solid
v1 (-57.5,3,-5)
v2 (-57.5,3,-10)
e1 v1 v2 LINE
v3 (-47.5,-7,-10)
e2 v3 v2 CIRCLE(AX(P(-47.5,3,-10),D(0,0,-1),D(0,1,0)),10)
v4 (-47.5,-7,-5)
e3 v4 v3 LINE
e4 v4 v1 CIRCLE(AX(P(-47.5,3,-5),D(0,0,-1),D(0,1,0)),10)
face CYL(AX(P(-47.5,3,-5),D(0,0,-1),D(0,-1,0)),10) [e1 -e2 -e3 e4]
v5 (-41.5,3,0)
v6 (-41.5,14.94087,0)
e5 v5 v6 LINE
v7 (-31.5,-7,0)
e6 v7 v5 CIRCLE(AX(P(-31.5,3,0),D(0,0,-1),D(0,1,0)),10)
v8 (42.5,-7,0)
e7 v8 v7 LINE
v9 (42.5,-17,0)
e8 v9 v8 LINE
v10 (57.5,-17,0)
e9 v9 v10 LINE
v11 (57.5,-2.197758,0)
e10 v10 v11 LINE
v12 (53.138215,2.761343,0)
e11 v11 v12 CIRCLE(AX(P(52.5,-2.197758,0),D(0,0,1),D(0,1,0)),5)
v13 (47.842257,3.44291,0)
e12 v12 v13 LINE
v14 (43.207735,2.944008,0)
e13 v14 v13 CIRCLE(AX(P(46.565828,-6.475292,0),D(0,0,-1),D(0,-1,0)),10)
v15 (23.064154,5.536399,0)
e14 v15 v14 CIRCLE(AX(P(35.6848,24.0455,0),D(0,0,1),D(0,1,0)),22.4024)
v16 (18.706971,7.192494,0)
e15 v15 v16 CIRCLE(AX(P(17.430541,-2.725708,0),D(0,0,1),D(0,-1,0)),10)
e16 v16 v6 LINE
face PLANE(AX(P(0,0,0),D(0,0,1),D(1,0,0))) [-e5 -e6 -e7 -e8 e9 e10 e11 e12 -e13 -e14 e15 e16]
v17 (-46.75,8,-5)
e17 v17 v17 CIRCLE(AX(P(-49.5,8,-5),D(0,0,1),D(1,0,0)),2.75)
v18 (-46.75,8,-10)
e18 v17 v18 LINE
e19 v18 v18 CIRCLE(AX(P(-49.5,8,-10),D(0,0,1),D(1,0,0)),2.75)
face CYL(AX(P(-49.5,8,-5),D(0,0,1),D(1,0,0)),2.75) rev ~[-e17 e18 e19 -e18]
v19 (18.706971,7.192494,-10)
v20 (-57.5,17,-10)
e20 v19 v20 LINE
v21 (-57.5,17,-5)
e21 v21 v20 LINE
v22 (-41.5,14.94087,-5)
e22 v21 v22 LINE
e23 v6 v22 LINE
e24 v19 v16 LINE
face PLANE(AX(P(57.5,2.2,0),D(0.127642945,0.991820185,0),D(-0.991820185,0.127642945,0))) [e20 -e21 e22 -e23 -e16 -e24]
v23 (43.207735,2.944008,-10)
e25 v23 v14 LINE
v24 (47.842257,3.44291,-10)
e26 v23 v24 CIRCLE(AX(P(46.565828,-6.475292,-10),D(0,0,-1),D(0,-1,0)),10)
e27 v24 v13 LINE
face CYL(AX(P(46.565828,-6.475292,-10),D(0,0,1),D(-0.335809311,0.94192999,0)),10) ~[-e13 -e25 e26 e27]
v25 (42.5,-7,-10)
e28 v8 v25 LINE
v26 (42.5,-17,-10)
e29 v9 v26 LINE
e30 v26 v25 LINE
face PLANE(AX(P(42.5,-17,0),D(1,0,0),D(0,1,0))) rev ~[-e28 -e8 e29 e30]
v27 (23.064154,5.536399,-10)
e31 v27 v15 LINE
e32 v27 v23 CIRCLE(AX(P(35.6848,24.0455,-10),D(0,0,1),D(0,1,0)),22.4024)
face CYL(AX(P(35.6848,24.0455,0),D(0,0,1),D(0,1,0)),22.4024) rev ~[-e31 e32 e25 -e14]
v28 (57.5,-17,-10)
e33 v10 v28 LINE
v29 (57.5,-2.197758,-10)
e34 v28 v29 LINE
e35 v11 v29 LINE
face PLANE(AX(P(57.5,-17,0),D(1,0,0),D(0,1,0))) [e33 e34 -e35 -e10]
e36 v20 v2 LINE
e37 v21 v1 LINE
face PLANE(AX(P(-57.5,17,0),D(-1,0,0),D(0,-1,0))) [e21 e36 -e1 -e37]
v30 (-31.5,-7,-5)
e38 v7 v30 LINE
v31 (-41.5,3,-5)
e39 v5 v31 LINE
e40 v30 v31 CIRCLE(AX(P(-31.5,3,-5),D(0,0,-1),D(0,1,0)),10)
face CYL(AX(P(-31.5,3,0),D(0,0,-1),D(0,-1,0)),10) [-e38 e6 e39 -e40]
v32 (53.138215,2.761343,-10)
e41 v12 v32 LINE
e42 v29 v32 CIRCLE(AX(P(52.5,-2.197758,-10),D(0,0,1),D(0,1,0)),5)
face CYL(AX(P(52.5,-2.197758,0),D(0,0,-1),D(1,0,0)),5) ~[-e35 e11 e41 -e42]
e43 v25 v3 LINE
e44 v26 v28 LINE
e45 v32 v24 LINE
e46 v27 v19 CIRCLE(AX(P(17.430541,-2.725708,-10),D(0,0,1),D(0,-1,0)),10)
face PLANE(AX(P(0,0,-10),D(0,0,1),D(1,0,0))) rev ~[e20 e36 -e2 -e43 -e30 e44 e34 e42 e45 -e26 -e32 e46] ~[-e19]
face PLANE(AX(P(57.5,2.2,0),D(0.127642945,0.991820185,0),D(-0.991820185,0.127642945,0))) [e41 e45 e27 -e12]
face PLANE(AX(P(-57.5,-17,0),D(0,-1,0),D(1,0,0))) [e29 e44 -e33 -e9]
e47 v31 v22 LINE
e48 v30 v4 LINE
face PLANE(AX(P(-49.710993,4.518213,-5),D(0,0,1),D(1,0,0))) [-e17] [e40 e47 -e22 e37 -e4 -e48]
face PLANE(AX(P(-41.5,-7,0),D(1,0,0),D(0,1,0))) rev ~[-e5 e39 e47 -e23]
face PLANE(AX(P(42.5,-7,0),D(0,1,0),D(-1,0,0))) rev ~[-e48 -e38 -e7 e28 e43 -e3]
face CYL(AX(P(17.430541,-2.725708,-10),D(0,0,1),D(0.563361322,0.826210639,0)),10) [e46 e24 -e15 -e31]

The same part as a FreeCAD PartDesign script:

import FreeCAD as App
import Part
import Sketcher
from FreeCAD import Vector
Q = App.Units.Quantity


def edges_at(feature, points):
    """Names of the edges that pass closest to the given points."""
    edges = feature.Shape.Edges
    near = lambda p: min(range(len(edges)), key=lambda i: edges[i].distToShape(Part.Vertex(*p))[0])
    return sorted({f"Edge{near(p) + 1}" for p in points})


def add_polygon(sketch, points):
    """Adds a closed chain of lines whose ends are joined by coincident constraints."""
    first, n = sketch.GeometryCount, len(points)
    for a, b in zip(points, points[1:] + points[:1]):
        sketch.addGeometry(Part.LineSegment(App.Vector(*a, 0), App.Vector(*b, 0)), False)
    for i in range(n):
        sketch.addConstraint(Sketcher.Constraint("Coincident", first + i, 2, first + (i + 1) % n, 1))

doc = App.newDocument("Part")
params = doc.addObject("Spreadsheet::Sheet", "Params")
for row, (alias, value) in enumerate([
    ("sketch1_width", "115 mm"),
    ("sketch1_height", "34 mm"),
    ("pad1_length", "10 mm"),
    ("sketch2_width", "100 mm"),
    ("sketch2_height", "10 mm"),
    ("pocket1_length", "10 mm"),
    ("sketch3_width", "115 mm"),
    ("sketch3_height", "14.8 mm"),
    ("pocket2_length", "10 mm"),
    ("fillet_radius", "5 mm"),
    ("pocket3_length", "10 mm"),
    ("fillet2_radius", "10 mm"),
    ("fillet3_radius", "10 mm"),
    ("sketch5_width", "16 mm"),
    ("sketch5_height", "24 mm"),
    ("pocket4_length", "5 mm"),
    ("fillet4_radius", "10 mm"),
    ("sketch6_diameter", "5.5 mm"),
    ("pocket5_length", "5.5 mm"),
    ("fillet5_radius", "10 mm"),
], start=1):
    params.set(f"A{row}", alias)
    params.set(f"B{row}", "=" + value)
    params.setAlias(f"B{row}", alias)

body = doc.addObject("PartDesign::Body", "Body")

sketch1 = body.newObject("Sketcher::SketchObject", "Sketch")
sketch1.AttachmentSupport = (doc.getObject("XY_Plane"), [""])
sketch1.MapMode = "FlatFace"
add_polygon(sketch1, [(-58, 17), (-58, -17), (58, -17), (58, 17)])
sketch1.addConstraint([
    Sketcher.Constraint("Vertical", 0),
    Sketcher.Constraint("Horizontal", 1),
    Sketcher.Constraint("Vertical", 2),
    Sketcher.Constraint("Horizontal", 3),
    Sketcher.Constraint("Symmetric", 0, 2, 2, 2, -1, 1),
    Sketcher.Constraint("DistanceX", 1, 1, 1, 2, Q("115 mm")),
    Sketcher.Constraint("DistanceY", 0, 2, 0, 1, Q("34 mm")),
])
sketch1.setExpression("Constraints[9]", "Params.sketch1_width")
sketch1.setExpression("Constraints[10]", "Params.sketch1_height")
pad1 = body.newObject("PartDesign::Pad", "Pad")
pad1.Profile = sketch1
pad1.setExpression("Length", "Params.pad1_length")
pad1.Reversed = True

sketch2 = body.newObject("Sketcher::SketchObject", "Sketch001")
sketch2.AttachmentSupport = (doc.getObject("XY_Plane"), [""])
sketch2.MapMode = "FlatFace"
add_polygon(sketch2, [(-58, -7), (-58, -17), (42, -17), (42, -7)])
sketch2.addConstraint([
    Sketcher.Constraint("Vertical", 0),
    Sketcher.Constraint("Horizontal", 1),
    Sketcher.Constraint("Vertical", 2),
    Sketcher.Constraint("Horizontal", 3),
    Sketcher.Constraint("DistanceX", 1, 1, 1, 2, Q("100 mm")),
    Sketcher.Constraint("DistanceY", 0, 2, 0, 1, Q("10 mm")),
    Sketcher.Constraint("DistanceY", 0, 2, -1, 1, Q("17 mm")),
    Sketcher.Constraint("DistanceX", 0, 2, -1, 1, Q("57.5 mm")),
])
sketch2.setExpression("Constraints[8]", "Params.sketch2_width")
sketch2.setExpression("Constraints[9]", "Params.sketch2_height")
pocket1 = body.newObject("PartDesign::Pocket", "Pocket")
pocket1.Profile = sketch2
pocket1.setExpression("Length", "Params.pocket1_length")

sketch3 = body.newObject("Sketcher::SketchObject", "Sketch002")
sketch3.AttachmentSupport = (doc.getObject("XY_Plane"), [""])
sketch3.MapMode = "FlatFace"
add_polygon(sketch3, [(-58, 17), (58, 2), (58, 17)])
sketch3.addConstraint([
    Sketcher.Constraint("Vertical", 1),
    Sketcher.Constraint("Horizontal", 2),
    Sketcher.Constraint("DistanceX", 2, 2, 2, 1, Q("115 mm")),
    Sketcher.Constraint("DistanceY", 1, 1, 1, 2, Q("14.8 mm")),
    Sketcher.Constraint("DistanceY", -1, 1, 1, 2, Q("17 mm")),
    Sketcher.Constraint("DistanceX", -1, 1, 0, 2, Q("57.5 mm")),
])
sketch3.setExpression("Constraints[5]", "Params.sketch3_width")
sketch3.setExpression("Constraints[6]", "Params.sketch3_height")
pocket2 = body.newObject("PartDesign::Pocket", "Pocket001")
pocket2.Profile = sketch3
pocket2.setExpression("Length", "Params.pocket2_length")
doc.recompute()

fillet = body.newObject("PartDesign::Fillet", "Fillet")
fillet.Base = (pocket2, edges_at(pocket2, [(57.5, 2.2, -5)]))
fillet.setExpression("Radius", "Params.fillet_radius")

sketch4 = body.newObject("Sketcher::SketchObject", "Sketch003")
sketch4.AttachmentSupport = (doc.getObject("XY_Plane"), [""])
sketch4.MapMode = "FlatFace"
sketch4.addGeometry(Part.Circle(Vector(36, 24, 0), Vector(0, 0, 1), 22), False)
sketch4.addConstraint([
    Sketcher.Constraint("Diameter", 0, Q("44.8048 mm")),
    Sketcher.Constraint("DistanceX", -1, 1, 0, 3, Q("35.6848 mm")),
    Sketcher.Constraint("DistanceY", -1, 1, 0, 3, Q("24.0455 mm")),
])
pocket3 = body.newObject("PartDesign::Pocket", "Pocket002")
pocket3.Profile = sketch4
pocket3.setExpression("Length", "Params.pocket3_length")
doc.recompute()

fillet2 = body.newObject("PartDesign::Fillet", "Fillet001")
fillet2.Base = (pocket3, edges_at(pocket3, [(45.231, 3.779, -5)]))
fillet2.setExpression("Radius", "Params.fillet2_radius")
doc.recompute()

fillet3 = body.newObject("PartDesign::Fillet", "Fillet002")
fillet3.Base = (fillet2, edges_at(fillet2, [(21.318, 6.856, -5)]))
fillet3.setExpression("Radius", "Params.fillet3_radius")

sketch5 = body.newObject("Sketcher::SketchObject", "Sketch004")
sketch5.AttachmentSupport = (doc.getObject("XY_Plane"), [""])
sketch5.MapMode = "FlatFace"
add_polygon(sketch5, [(-58, 17), (-58, -7), (-42, -7), (-42, 15)])
sketch5.addConstraint([
    Sketcher.Constraint("Vertical", 0),
    Sketcher.Constraint("Horizontal", 1),
    Sketcher.Constraint("Vertical", 2),
    Sketcher.Constraint("DistanceX", 1, 1, 1, 2, Q("16 mm")),
    Sketcher.Constraint("DistanceY", 0, 2, 0, 1, Q("24 mm")),
    Sketcher.Constraint("DistanceY", 0, 2, -1, 1, Q("7 mm")),
    Sketcher.Constraint("DistanceX", 0, 2, -1, 1, Q("57.5 mm")),
    Sketcher.Constraint("DistanceY", 2, 1, 2, 2, Q("21.941 mm")),
])
sketch5.setExpression("Constraints[7]", "Params.sketch5_width")
sketch5.setExpression("Constraints[8]", "Params.sketch5_height")
pocket4 = body.newObject("PartDesign::Pocket", "Pocket003")
pocket4.Profile = sketch5
pocket4.setExpression("Length", "Params.pocket4_length")
doc.recompute()

fillet4 = body.newObject("PartDesign::Fillet", "Fillet003")
fillet4.Base = (pocket4, edges_at(pocket4, [(-41.5, -7, -2.5)]))
fillet4.setExpression("Radius", "Params.fillet4_radius")

sketch6 = body.newObject("Sketcher::SketchObject", "Sketch005")
sketch6.AttachmentSupport = (doc.getObject("XY_Plane"), [""])
sketch6.MapMode = "FlatFace"
sketch6.AttachmentOffset = App.Placement(Vector(0, 0, -5), App.Rotation())
sketch6.addGeometry(Part.Circle(Vector(-49.5, 8, 0), Vector(0, 0, 1), 2.8), False)
sketch6.addConstraint([
    Sketcher.Constraint("Diameter", 0, Q("5.5 mm")),
    Sketcher.Constraint("DistanceY", -1, 1, 0, 3, Q("8 mm")),
    Sketcher.Constraint("DistanceX", 0, 3, -1, 1, Q("49.5 mm")),
])
sketch6.setExpression("Constraints[0]", "Params.sketch6_diameter")
pocket5 = body.newObject("PartDesign::Pocket", "Pocket004")
pocket5.Profile = sketch6
pocket5.setExpression("Length", "Params.pocket5_length")
doc.recompute()

fillet5 = body.newObject("PartDesign::Fillet", "Fillet004")
fillet5.Base = (pocket5, edges_at(pocket5, [(-57.5, -7, -7.5)]))
fillet5.setExpression("Radius", "Params.fillet5_radius")

doc.recompute()
